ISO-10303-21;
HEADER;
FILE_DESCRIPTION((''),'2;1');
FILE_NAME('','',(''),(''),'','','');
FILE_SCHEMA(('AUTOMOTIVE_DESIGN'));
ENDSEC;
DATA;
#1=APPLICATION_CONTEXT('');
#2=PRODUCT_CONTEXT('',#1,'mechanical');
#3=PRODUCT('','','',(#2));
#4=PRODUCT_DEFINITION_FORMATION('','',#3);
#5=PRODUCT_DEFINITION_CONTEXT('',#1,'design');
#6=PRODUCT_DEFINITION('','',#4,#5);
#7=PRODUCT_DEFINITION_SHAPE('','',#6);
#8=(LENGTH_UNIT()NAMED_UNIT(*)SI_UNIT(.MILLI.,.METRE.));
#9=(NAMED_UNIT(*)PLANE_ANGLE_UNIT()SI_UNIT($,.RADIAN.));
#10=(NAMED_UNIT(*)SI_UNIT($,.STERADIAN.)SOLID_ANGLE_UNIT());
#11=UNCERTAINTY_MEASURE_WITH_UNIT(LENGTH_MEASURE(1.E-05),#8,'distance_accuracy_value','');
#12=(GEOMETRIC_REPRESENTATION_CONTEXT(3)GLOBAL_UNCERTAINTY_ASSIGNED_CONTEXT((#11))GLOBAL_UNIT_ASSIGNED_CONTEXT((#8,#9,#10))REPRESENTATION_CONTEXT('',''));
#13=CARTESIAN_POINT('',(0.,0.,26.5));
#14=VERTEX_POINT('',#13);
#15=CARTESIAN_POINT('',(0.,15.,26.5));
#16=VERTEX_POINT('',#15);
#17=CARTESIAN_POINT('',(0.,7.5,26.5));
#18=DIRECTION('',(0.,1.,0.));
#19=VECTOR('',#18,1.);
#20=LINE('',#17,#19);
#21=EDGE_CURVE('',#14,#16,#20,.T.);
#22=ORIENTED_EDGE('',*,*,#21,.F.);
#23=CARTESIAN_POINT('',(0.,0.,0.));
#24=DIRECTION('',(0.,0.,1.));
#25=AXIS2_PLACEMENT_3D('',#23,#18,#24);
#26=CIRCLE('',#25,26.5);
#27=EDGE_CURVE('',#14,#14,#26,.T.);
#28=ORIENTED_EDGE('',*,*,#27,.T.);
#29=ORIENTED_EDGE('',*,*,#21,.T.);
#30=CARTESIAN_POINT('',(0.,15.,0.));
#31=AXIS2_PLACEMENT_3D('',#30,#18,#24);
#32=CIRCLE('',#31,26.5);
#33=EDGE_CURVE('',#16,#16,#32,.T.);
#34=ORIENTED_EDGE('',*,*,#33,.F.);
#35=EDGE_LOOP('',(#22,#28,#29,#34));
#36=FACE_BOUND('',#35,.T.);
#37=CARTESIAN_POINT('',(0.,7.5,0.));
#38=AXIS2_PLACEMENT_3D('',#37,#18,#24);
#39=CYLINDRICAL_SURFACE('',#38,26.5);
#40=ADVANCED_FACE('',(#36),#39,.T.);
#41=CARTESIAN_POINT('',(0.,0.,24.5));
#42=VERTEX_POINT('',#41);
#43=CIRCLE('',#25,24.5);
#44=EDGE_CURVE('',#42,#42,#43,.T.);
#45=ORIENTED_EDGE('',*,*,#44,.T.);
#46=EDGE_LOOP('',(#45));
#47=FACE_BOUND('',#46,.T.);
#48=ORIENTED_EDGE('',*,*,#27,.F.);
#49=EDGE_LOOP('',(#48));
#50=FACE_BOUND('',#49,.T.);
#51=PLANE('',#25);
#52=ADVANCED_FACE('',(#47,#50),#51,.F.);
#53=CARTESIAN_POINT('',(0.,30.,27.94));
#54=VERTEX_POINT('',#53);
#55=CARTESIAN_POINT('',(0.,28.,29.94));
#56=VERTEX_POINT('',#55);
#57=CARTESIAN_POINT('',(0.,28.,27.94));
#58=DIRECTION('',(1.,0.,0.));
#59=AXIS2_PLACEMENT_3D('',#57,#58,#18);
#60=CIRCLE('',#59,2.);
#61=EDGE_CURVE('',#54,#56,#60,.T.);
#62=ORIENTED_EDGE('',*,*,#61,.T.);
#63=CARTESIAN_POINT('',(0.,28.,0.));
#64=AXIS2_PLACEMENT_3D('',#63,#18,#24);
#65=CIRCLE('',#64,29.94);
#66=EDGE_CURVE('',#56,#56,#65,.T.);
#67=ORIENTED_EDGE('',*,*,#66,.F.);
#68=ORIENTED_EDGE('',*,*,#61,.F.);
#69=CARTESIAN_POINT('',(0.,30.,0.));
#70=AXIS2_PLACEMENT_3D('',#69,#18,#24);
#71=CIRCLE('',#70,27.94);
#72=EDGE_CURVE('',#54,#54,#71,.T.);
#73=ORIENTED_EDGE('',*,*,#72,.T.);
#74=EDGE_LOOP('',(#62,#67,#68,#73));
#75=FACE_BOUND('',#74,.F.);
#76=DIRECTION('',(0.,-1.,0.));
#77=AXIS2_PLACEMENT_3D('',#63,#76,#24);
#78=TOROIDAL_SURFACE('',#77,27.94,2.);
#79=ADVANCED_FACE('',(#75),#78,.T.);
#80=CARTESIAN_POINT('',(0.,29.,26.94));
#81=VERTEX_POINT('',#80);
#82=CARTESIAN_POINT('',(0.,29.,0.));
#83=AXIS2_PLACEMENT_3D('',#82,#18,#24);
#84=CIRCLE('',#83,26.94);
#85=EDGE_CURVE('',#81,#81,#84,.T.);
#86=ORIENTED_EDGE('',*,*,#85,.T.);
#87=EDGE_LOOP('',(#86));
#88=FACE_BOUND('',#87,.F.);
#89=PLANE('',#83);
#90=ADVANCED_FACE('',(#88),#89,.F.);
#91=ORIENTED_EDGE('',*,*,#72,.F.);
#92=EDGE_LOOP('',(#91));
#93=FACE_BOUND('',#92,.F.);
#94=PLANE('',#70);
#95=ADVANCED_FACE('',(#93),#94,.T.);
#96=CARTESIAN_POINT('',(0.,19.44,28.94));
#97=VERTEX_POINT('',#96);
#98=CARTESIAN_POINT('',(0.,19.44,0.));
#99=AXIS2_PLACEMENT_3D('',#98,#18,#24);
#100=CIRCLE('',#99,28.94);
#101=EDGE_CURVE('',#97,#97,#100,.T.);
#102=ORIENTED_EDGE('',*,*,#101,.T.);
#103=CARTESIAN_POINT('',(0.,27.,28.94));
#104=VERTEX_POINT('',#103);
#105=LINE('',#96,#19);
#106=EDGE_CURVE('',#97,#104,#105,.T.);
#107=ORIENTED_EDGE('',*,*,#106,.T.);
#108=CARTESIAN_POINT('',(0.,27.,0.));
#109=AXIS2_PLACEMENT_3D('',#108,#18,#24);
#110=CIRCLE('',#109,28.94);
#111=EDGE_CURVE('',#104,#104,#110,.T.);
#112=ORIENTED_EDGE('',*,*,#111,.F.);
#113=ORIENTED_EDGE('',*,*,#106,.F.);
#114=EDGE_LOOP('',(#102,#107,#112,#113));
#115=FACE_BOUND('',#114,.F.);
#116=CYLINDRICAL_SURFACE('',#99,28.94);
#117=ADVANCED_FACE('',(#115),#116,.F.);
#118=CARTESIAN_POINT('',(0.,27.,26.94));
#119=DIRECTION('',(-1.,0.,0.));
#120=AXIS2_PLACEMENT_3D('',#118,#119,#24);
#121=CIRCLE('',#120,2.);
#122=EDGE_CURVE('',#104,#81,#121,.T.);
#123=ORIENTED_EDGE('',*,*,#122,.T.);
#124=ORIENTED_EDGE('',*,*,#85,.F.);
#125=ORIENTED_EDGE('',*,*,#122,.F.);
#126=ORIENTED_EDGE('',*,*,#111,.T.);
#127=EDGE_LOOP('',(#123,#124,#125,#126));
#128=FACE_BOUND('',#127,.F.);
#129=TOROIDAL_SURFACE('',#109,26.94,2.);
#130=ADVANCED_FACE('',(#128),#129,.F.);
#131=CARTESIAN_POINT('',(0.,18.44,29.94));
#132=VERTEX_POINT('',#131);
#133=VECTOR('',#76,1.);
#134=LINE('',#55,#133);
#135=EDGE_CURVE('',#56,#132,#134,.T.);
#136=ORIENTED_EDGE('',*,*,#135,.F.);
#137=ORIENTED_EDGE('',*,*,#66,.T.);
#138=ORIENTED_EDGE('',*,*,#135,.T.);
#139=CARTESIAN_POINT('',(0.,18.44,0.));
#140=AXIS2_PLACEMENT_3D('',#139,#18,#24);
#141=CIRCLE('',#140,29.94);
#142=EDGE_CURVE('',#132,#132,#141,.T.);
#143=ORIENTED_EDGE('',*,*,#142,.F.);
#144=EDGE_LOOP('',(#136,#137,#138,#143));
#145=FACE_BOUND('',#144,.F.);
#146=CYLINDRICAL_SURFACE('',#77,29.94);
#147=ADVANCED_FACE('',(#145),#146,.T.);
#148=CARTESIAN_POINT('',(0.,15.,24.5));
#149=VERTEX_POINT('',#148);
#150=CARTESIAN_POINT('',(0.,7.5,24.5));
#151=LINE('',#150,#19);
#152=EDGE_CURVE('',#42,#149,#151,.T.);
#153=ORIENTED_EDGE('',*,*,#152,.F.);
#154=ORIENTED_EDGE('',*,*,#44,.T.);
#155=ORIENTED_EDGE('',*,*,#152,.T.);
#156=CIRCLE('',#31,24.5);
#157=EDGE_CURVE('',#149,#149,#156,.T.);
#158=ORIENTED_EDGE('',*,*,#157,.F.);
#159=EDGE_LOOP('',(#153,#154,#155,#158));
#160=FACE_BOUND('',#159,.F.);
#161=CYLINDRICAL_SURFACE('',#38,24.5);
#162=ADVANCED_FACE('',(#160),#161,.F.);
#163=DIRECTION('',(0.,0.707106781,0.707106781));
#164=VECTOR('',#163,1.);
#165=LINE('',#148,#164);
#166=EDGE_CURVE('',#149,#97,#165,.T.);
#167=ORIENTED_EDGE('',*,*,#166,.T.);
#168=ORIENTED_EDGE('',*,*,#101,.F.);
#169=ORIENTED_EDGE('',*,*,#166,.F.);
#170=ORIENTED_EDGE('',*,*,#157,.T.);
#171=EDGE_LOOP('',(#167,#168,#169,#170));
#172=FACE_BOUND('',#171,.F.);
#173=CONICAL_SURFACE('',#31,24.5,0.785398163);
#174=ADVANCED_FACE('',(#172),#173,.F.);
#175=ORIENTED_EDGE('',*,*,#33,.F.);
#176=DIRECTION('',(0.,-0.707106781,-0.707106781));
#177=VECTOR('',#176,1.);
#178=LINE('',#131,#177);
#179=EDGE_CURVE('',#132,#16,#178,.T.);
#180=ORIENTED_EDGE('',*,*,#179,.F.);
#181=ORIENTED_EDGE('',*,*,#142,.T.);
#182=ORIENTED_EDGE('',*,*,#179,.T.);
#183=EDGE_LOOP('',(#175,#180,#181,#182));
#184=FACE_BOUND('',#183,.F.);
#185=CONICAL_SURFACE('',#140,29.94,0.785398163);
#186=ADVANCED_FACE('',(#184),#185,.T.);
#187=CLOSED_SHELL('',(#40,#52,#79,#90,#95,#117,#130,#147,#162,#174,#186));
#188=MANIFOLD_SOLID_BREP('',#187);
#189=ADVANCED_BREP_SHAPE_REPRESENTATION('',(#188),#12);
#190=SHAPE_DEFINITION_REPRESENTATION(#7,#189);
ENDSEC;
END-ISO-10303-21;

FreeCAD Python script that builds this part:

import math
import FreeCAD as App
import Part
import Sketcher
Q = App.Units.Quantity

doc = App.newDocument("Part")
body = doc.addObject("PartDesign::Body", "Body")

# Sketch on YZ plane
sketch1 = body.newObject("Sketcher::SketchObject", "Sketch")
sketch1.AttachmentSupport = (doc.getObject("YZ_Plane"), [""])
sketch1.MapMode = "FlatFace"
sketch1.addGeometry(Part.LineSegment(App.Vector(0, 26.5, 0), App.Vector(0, 24.5, 0)), False)
sketch1.addGeometry(Part.LineSegment(App.Vector(0, 24.5, 0), App.Vector(15, 24.5, 0)), False)
sketch1.addGeometry(Part.LineSegment(App.Vector(15, 24.5, 0), App.Vector(19.4, 28.9, 0)), False)
sketch1.addGeometry(Part.LineSegment(App.Vector(19.4, 28.9, 0), App.Vector(27, 28.9, 0)), False)
sketch1.addGeometry(Part.ArcOfCircle(Part.Circle(App.Vector(27, 26.9, 0), App.Vector(0, 0, 1), 2), math.radians(0), math.radians(90)), False)
sketch1.addGeometry(Part.LineSegment(App.Vector(29, 26.9, 0), App.Vector(29, 0, 0)), False)
sketch1.addGeometry(Part.LineSegment(App.Vector(29, 0, 0), App.Vector(30, 0, 0)), False)
sketch1.addGeometry(Part.LineSegment(App.Vector(30, 0, 0), App.Vector(30, 27.9, 0)), False)
sketch1.addGeometry(Part.ArcOfCircle(Part.Circle(App.Vector(28, 27.9, 0), App.Vector(0, 0, 1), 2), math.radians(0), math.radians(90)), False)
sketch1.addGeometry(Part.LineSegment(App.Vector(28, 29.9, 0), App.Vector(18.4, 29.9, 0)), False)
sketch1.addGeometry(Part.LineSegment(App.Vector(18.4, 29.9, 0), App.Vector(15, 26.5, 0)), False)
sketch1.addGeometry(Part.LineSegment(App.Vector(15, 26.5, 0), App.Vector(0, 26.5, 0)), False)
sketch1.addConstraint(Sketcher.Constraint("Coincident", 0, 2, 1, 1))
sketch1.addConstraint(Sketcher.Constraint("Coincident", 1, 2, 2, 1))
sketch1.addConstraint(Sketcher.Constraint("Coincident", 2, 2, 3, 1))
sketch1.addConstraint(Sketcher.Constraint("Tangent", 3, 2, 4, 2))
sketch1.addConstraint(Sketcher.Constraint("Tangent", 4, 1, 5, 1))
sketch1.addConstraint(Sketcher.Constraint("Coincident", 5, 2, 6, 1))
sketch1.addConstraint(Sketcher.Constraint("Coincident", 6, 2, 7, 1))
sketch1.addConstraint(Sketcher.Constraint("Tangent", 7, 2, 8, 1))
sketch1.addConstraint(Sketcher.Constraint("Tangent", 8, 2, 9, 1))
sketch1.addConstraint(Sketcher.Constraint("Coincident", 9, 2, 10, 1))
sketch1.addConstraint(Sketcher.Constraint("Coincident", 10, 2, 11, 1))
sketch1.addConstraint(Sketcher.Constraint("Coincident", 11, 2, 0, 1))
sketch1.addConstraint(Sketcher.Constraint("Vertical", 0))
sketch1.addConstraint(Sketcher.Constraint("Horizontal", 1))
sketch1.addConstraint(Sketcher.Constraint("Horizontal", 3))
sketch1.addConstraint(Sketcher.Constraint("Vertical", 5))
sketch1.addConstraint(Sketcher.Constraint("Horizontal", 6))
sketch1.addConstraint(Sketcher.Constraint("Vertical", 7))
sketch1.addConstraint(Sketcher.Constraint("Horizontal", 9))
sketch1.addConstraint(Sketcher.Constraint("Horizontal", 11))
sketch1.addConstraint(Sketcher.Constraint("Equal", 4, 8))
sketch1.addConstraint(Sketcher.Constraint("PointOnObject", 0, 2, -2))
sketch1.addConstraint(Sketcher.Constraint("PointOnObject", 5, 2, -1))
sketch1.addConstraint(Sketcher.Constraint("Parallel", 2, 10))
sketch1.addConstraint(Sketcher.Constraint("Vertical", 1, 2, 10, 2))
sketch1.addConstraint(Sketcher.Constraint("Radius", 4, Q("2 mm")))
sketch1.addConstraint(Sketcher.Constraint("DistanceX", 1, 1, 1, 2, Q("15 mm")))
sketch1.addConstraint(Sketcher.Constraint("DistanceX", 6, 1, 6, 2, Q("1 mm")))
sketch1.addConstraint(Sketcher.Constraint("DistanceY", 0, 2, 0, 1, Q("2 mm")))
sketch1.addConstraint(Sketcher.Constraint("Angle", 2, Q("45 deg")))
sketch1.addConstraint(Sketcher.Constraint("DistanceX", -1, 1, 4, 3, Q("27 mm")))
sketch1.addConstraint(Sketcher.Constraint("DistanceY", 4, 3, 8, 3, Q("1 mm")))
sketch1.addConstraint(Sketcher.Constraint("DistanceX", 3, 1, 3, 2, Q("7.56 mm")))
sketch1.addConstraint(Sketcher.Constraint("DistanceY", 5, 2, 5, 1, Q("26.94 mm")))
revolution = body.newObject("PartDesign::Revolution", "Revolution")
revolution.Profile = sketch1
revolution.ReferenceAxis = (sketch1, ["H_Axis"])
revolution.Angle = 360

doc.recompute()
